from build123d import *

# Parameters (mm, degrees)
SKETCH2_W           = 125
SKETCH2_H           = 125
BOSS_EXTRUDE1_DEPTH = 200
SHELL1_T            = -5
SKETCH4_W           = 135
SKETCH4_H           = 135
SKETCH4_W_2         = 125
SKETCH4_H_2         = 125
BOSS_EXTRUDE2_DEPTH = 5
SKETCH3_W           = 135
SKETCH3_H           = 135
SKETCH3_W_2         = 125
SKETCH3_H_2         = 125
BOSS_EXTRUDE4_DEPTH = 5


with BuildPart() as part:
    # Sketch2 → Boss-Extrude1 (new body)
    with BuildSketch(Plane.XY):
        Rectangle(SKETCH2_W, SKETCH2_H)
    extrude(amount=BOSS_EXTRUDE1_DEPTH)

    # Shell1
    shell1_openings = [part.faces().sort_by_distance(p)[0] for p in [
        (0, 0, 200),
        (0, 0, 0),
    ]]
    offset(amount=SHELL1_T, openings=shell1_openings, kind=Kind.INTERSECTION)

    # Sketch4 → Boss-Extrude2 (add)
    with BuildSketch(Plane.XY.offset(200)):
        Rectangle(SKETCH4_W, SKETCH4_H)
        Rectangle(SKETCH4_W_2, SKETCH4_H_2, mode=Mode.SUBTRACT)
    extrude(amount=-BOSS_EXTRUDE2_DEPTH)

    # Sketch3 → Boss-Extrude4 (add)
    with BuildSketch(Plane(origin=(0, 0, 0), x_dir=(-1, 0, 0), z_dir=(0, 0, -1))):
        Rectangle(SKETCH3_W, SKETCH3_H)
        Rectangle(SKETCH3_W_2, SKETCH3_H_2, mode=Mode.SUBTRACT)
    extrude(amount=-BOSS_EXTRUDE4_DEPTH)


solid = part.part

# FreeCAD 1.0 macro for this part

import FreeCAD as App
import Part
import Sketcher
Q = App.Units.Quantity


def faces_at(feature, points):
    """Names of the faces that lie closest to the given points."""
    faces = feature.Shape.Faces
    near = lambda p: min(range(len(faces)), key=lambda i: faces[i].distToShape(Part.Vertex(*p))[0])
    return sorted({f"Face{near(p) + 1}" for p in points})

doc = App.newDocument("Part")
body = doc.addObject("PartDesign::Body", "Body")

sketch1 = body.newObject("Sketcher::SketchObject", "Sketch")
sketch1.AttachmentSupport = (doc.getObject("XY_Plane"), [""])
sketch1.MapMode = "FlatFace"
sketch1.addGeometry(Part.LineSegment(App.Vector(-62.5, 62.5, 0), App.Vector(-62.5, -62.5, 0)), False)
sketch1.addGeometry(Part.LineSegment(App.Vector(-62.5, -62.5, 0), App.Vector(62.5, -62.5, 0)), False)
sketch1.addGeometry(Part.LineSegment(App.Vector(62.5, -62.5, 0), App.Vector(62.5, 62.5, 0)), False)
sketch1.addGeometry(Part.LineSegment(App.Vector(62.5, 62.5, 0), App.Vector(-62.5, 62.5, 0)), False)
sketch1.addConstraint(Sketcher.Constraint("Coincident", 0, 2, 1, 1))
sketch1.addConstraint(Sketcher.Constraint("Coincident", 1, 2, 2, 1))
sketch1.addConstraint(Sketcher.Constraint("Coincident", 2, 2, 3, 1))
sketch1.addConstraint(Sketcher.Constraint("Coincident", 3, 2, 0, 1))
sketch1.addConstraint(Sketcher.Constraint("Vertical", 0))
sketch1.addConstraint(Sketcher.Constraint("Horizontal", 1))
sketch1.addConstraint(Sketcher.Constraint("Vertical", 2))
sketch1.addConstraint(Sketcher.Constraint("Horizontal", 3))
sketch1.addConstraint(Sketcher.Constraint("Symmetric", 0, 2, 2, 2, -1, 1))
sketch1.addConstraint(Sketcher.Constraint("Equal", 3, 0))
sketch1.addConstraint(Sketcher.Constraint("DistanceX", 1, 1, 1, 2, Q("125 mm")))
pad1 = body.newObject("PartDesign::Pad", "Pad")
pad1.Profile = sketch1
pad1.Length = 200
doc.recompute()

thickness = body.newObject("PartDesign::Thickness", "Thickness")
thickness.Base = (pad1, faces_at(pad1, [(0, 0, 200), (0, 0, 0)]))
thickness.Value = 5
thickness.Reversed = True
thickness.Join = "Intersection"

sketch2 = body.newObject("Sketcher::SketchObject", "Sketch001")
sketch2.AttachmentSupport = (doc.getObject("XY_Plane"), [""])
sketch2.MapMode = "FlatFace"
sketch2.AttachmentOffset = App.Placement(App.Vector(0, 0, 200), App.Rotation())
sketch2.addGeometry(Part.LineSegment(App.Vector(-67.5, 67.5, 0), App.Vector(-67.5, -67.5, 0)), False)
sketch2.addGeometry(Part.LineSegment(App.Vector(-67.5, -67.5, 0), App.Vector(67.5, -67.5, 0)), False)
sketch2.addGeometry(Part.LineSegment(App.Vector(67.5, -67.5, 0), App.Vector(67.5, 67.5, 0)), False)
sketch2.addGeometry(Part.LineSegment(App.Vector(67.5, 67.5, 0), App.Vector(-67.5, 67.5, 0)), False)
sketch2.addGeometry(Part.LineSegment(App.Vector(62.5, -62.5, 0), App.Vector(-62.5, -62.5, 0)), False)
sketch2.addGeometry(Part.LineSegment(App.Vector(-62.5, -62.5, 0), App.Vector(-62.5, 62.5, 0)), False)
sketch2.addGeometry(Part.LineSegment(App.Vector(-62.5, 62.5, 0), App.Vector(62.5, 62.5, 0)), False)
sketch2.addGeometry(Part.LineSegment(App.Vector(62.5, 62.5, 0), App.Vector(62.5, -62.5, 0)), False)
sketch2.addConstraint(Sketcher.Constraint("Coincident", 0, 2, 1, 1))
sketch2.addConstraint(Sketcher.Constraint("Coincident", 1, 2, 2, 1))
sketch2.addConstraint(Sketcher.Constraint("Coincident", 2, 2, 3, 1))
sketch2.addConstraint(Sketcher.Constraint("Coincident", 3, 2, 0, 1))
sketch2.addConstraint(Sketcher.Constraint("Coincident", 4, 2, 5, 1))
sketch2.addConstraint(Sketcher.Constraint("Coincident", 5, 2, 6, 1))
sketch2.addConstraint(Sketcher.Constraint("Coincident", 6, 2, 7, 1))
sketch2.addConstraint(Sketcher.Constraint("Coincident", 7, 2, 4, 1))
sketch2.addConstraint(Sketcher.Constraint("Vertical", 0))
sketch2.addConstraint(Sketcher.Constraint("Horizontal", 1))
sketch2.addConstraint(Sketcher.Constraint("Vertical", 2))
sketch2.addConstraint(Sketcher.Constraint("Horizontal", 3))
sketch2.addConstraint(Sketcher.Constraint("Horizontal", 4))
sketch2.addConstraint(Sketcher.Constraint("Vertical", 5))
sketch2.addConstraint(Sketcher.Constraint("Horizontal", 6))
sketch2.addConstraint(Sketcher.Constraint("Vertical", 7))
sketch2.addConstraint(Sketcher.Constraint("Symmetric", 0, 2, 2, 2, -1, 1))
sketch2.addConstraint(Sketcher.Constraint("Symmetric", 4, 2, 6, 2, -1, 1))
sketch2.addConstraint(Sketcher.Constraint("Equal", 3, 0))
sketch2.addConstraint(Sketcher.Constraint("Equal", 6, 5))
sketch2.addConstraint(Sketcher.Constraint("DistanceX", 1, 1, 1, 2, Q("135 mm")))
sketch2.addConstraint(Sketcher.Constraint("DistanceX", 4, 2, 4, 1, Q("125 mm")))
pad2 = body.newObject("PartDesign::Pad", "Pad001")
pad2.Profile = sketch2
pad2.Length = 5
pad2.Reversed = True

sketch3 = body.newObject("Sketcher::SketchObject", "Sketch002")
sketch3.AttachmentSupport = (doc.getObject("XY_Plane"), [""])
sketch3.MapMode = "FlatFace"
sketch3.addGeometry(Part.LineSegment(App.Vector(67.5, 67.5, 0), App.Vector(67.5, -67.5, 0)), False)
sketch3.addGeometry(Part.LineSegment(App.Vector(67.5, -67.5, 0), App.Vector(-67.5, -67.5, 0)), False)
sketch3.addGeometry(Part.LineSegment(App.Vector(-67.5, -67.5, 0), App.Vector(-67.5, 67.5, 0)), False)
sketch3.addGeometry(Part.LineSegment(App.Vector(-67.5, 67.5, 0), App.Vector(67.5, 67.5, 0)), False)
sketch3.addGeometry(Part.LineSegment(App.Vector(-62.5, -62.5, 0), App.Vector(62.5, -62.5, 0)), False)
sketch3.addGeometry(Part.LineSegment(App.Vector(62.5, -62.5, 0), App.Vector(62.5, 62.5, 0)), False)
sketch3.addGeometry(Part.LineSegment(App.Vector(62.5, 62.5, 0), App.Vector(-62.5, 62.5, 0)), False)
sketch3.addGeometry(Part.LineSegment(App.Vector(-62.5, 62.5, 0), App.Vector(-62.5, -62.5, 0)), False)
sketch3.addConstraint(Sketcher.Constraint("Coincident", 0, 2, 1, 1))
sketch3.addConstraint(Sketcher.Constraint("Coincident", 1, 2, 2, 1))
sketch3.addConstraint(Sketcher.Constraint("Coincident", 2, 2, 3, 1))
sketch3.addConstraint(Sketcher.Constraint("Coincident", 3, 2, 0, 1))
sketch3.addConstraint(Sketcher.Constraint("Coincident", 4, 2, 5, 1))
sketch3.addConstraint(Sketcher.Constraint("Coincident", 5, 2, 6, 1))
sketch3.addConstraint(Sketcher.Constraint("Coincident", 6, 2, 7, 1))
sketch3.addConstraint(Sketcher.Constraint("Coincident", 7, 2, 4, 1))
sketch3.addConstraint(Sketcher.Constraint("Vertical", 0))
sketch3.addConstraint(Sketcher.Constraint("Horizontal", 1))
sketch3.addConstraint(Sketcher.Constraint("Vertical", 2))
sketch3.addConstraint(Sketcher.Constraint("Horizontal", 3))
sketch3.addConstraint(Sketcher.Constraint("Horizontal", 4))
sketch3.addConstraint(Sketcher.Constraint("Vertical", 5))
sketch3.addConstraint(Sketcher.Constraint("Horizontal", 6))
sketch3.addConstraint(Sketcher.Constraint("Vertical", 7))
sketch3.addConstraint(Sketcher.Constraint("Symmetric", 0, 2, 2, 2, -1, 1))
sketch3.addConstraint(Sketcher.Constraint("Symmetric", 4, 2, 6, 2, -1, 1))
sketch3.addConstraint(Sketcher.Constraint("Equal", 3, 0))
sketch3.addConstraint(Sketcher.Constraint("Equal", 6, 5))
sketch3.addConstraint(Sketcher.Constraint("DistanceX", 1, 2, 1, 1, Q("135 mm")))
sketch3.addConstraint(Sketcher.Constraint("DistanceX", 4, 1, 4, 2, Q("125 mm")))
pad3 = body.newObject("PartDesign::Pad", "Pad002")
pad3.Profile = sketch3
pad3.Length = 5

doc.recompute()
